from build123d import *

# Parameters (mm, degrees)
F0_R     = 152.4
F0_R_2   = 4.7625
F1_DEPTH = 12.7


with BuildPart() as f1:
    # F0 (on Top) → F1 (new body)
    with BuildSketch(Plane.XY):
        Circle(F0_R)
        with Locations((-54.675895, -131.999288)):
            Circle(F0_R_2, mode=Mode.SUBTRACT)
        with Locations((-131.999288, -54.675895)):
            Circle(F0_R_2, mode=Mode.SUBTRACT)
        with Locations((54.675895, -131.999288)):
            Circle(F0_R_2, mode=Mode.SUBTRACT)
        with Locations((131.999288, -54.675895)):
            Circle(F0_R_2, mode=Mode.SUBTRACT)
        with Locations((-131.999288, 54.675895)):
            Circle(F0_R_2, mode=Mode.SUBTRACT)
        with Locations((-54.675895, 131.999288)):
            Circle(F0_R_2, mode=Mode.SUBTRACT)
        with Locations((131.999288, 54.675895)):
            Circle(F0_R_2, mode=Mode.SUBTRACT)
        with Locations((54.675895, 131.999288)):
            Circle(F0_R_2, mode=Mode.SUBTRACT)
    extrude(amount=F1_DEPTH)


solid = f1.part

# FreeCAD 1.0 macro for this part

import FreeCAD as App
import Part
import Sketcher

V = App.Vector
Q = App.Units.Quantity

doc = App.newDocument("Part")
body = doc.addObject("PartDesign::Body", "Body")

sketch1 = doc.addObject("Sketcher::SketchObject", "Sketch")
body.addObject(sketch1)
sketch1.AttachmentSupport = (doc.XY_Plane, [""])
sketch1.MapMode = "FlatFace"
sketch1.addGeometry([
    Part.Circle(V(0, 0, 0), V(0, 0, 1), 152.4),
    Part.Circle(V(-54.7, -132, 0), V(0, 0, 1), 4.8),
    Part.Circle(V(-132, -54.7, 0), V(0, 0, 1), 4.8),
    Part.Circle(V(54.7, -132, 0), V(0, 0, 1), 4.8),
    Part.Circle(V(132, -54.7, 0), V(0, 0, 1), 4.8),
    Part.Circle(V(-132, 54.7, 0), V(0, 0, 1), 4.8),
    Part.Circle(V(-54.7, 132, 0), V(0, 0, 1), 4.8),
    Part.Circle(V(132, 54.7, 0), V(0, 0, 1), 4.8),
    Part.Circle(V(54.7, 132, 0), V(0, 0, 1), 4.8),
], False)
sketch1.addConstraint([
    Sketcher.Constraint("Coincident", 0, 3, -1, 1),
    Sketcher.Constraint("Equal", 1, 2),
    Sketcher.Constraint("Equal", 2, 3),
    Sketcher.Constraint("Equal", 3, 4),
    Sketcher.Constraint("Equal", 4, 5),
    Sketcher.Constraint("Equal", 5, 6),
    Sketcher.Constraint("Equal", 6, 7),
    Sketcher.Constraint("Equal", 7, 8),
    Sketcher.Constraint("Symmetric", 4, 3, 5, 3, -1, 1),
    Sketcher.Constraint("Symmetric", 3, 3, 6, 3, -1, 1),
    Sketcher.Constraint("Symmetric", 2, 3, 7, 3, -1, 1),
    Sketcher.Constraint("Symmetric", 1, 3, 8, 3, -1, 1),
    Sketcher.Constraint("Symmetric", 1, 3, 3, 3, -2),
    Sketcher.Constraint("Symmetric", 2, 3, 4, 3, -2),
    Sketcher.Constraint("Diameter", 0, Q("12 in")),
    Sketcher.Constraint("Diameter", 1, Q("0.375 in")),
    Sketcher.Constraint("DistanceY", 1, 3, -1, 1, Q("131.999288 mm")),
    Sketcher.Constraint("DistanceX", 2, 3, -1, 1, Q("131.999288 mm")),
    Sketcher.Constraint("DistanceX", 1, 3, 3, 3, Q("109.35179 mm")),
    Sketcher.Constraint("DistanceY", 2, 3, 5, 3, Q("109.35179 mm")),
])
pad1 = doc.addObject("PartDesign::Pad", "Pad")
body.addObject(pad1)
pad1.Profile = sketch1
pad1.Length = Q("0.5 in")

doc.recompute()
